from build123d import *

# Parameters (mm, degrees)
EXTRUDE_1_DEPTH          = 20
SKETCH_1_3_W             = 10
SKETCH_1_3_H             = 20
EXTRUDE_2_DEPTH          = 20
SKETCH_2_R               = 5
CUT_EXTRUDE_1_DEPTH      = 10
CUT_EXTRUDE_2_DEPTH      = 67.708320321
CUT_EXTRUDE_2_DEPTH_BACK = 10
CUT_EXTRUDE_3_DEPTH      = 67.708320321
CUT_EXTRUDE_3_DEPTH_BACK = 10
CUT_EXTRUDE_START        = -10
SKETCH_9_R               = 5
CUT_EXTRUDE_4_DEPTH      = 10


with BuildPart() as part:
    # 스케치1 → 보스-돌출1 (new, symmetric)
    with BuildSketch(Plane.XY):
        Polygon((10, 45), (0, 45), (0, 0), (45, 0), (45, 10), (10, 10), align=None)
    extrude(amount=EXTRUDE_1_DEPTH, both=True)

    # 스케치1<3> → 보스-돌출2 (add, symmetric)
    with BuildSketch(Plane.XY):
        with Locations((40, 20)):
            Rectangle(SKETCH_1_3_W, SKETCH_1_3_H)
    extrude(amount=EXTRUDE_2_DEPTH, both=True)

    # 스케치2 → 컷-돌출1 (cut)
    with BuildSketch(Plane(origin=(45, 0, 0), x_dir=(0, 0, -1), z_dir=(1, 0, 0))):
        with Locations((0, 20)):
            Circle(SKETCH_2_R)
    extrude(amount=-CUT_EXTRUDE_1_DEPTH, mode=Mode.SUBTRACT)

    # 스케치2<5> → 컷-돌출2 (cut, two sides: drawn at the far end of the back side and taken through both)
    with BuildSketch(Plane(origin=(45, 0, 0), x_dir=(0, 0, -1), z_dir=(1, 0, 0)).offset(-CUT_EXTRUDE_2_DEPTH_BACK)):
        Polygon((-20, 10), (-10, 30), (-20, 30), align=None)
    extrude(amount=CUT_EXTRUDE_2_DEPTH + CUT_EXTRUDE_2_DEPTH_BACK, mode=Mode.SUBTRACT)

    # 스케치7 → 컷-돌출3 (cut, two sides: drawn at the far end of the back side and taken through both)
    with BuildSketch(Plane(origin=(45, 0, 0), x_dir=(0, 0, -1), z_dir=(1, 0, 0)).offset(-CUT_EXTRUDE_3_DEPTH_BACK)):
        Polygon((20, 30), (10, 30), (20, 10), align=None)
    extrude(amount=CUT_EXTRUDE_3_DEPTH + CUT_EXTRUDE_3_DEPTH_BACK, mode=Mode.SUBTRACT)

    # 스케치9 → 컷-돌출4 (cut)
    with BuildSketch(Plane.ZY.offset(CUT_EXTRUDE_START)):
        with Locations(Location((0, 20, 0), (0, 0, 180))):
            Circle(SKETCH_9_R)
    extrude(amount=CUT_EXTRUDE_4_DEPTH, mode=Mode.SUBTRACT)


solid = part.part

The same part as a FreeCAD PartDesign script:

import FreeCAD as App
import Part
import Sketcher

V = App.Vector

doc = App.newDocument("Part")
body = doc.addObject("PartDesign::Body", "Body")

sketch1 = body.newObject("Sketcher::SketchObject", "Sketch")
sketch1.AttachmentSupport = (doc.getObject("XY_Plane"), [""])
sketch1.MapMode = "FlatFace"
sketch1.addGeometry([
    Part.LineSegment(V(10, 45, 0), V(0, 45, 0)),
    Part.LineSegment(V(0, 45, 0), V(0, 0, 0)),
    Part.LineSegment(V(0, 0, 0), V(45, 0, 0)),
    Part.LineSegment(V(45, 0, 0), V(45, 10, 0)),
    Part.LineSegment(V(45, 10, 0), V(10, 10, 0)),
    Part.LineSegment(V(10, 10, 0), V(10, 45, 0)),
], False)
sketch1.addConstraint([
    Sketcher.Constraint("Coincident", 0, 2, 1, 1),
    Sketcher.Constraint("Coincident", 1, 2, 2, 1),
    Sketcher.Constraint("Coincident", 2, 2, 3, 1),
    Sketcher.Constraint("Coincident", 3, 2, 4, 1),
    Sketcher.Constraint("Coincident", 4, 2, 5, 1),
    Sketcher.Constraint("Coincident", 5, 2, 0, 1),
    Sketcher.Constraint("Horizontal", 0),
    Sketcher.Constraint("Vertical", 1),
    Sketcher.Constraint("Horizontal", 2),
    Sketcher.Constraint("Vertical", 3),
    Sketcher.Constraint("Horizontal", 4),
    Sketcher.Constraint("Vertical", 5),
    Sketcher.Constraint("Coincident", 1, 2, -1, 1),
    Sketcher.Constraint("Equal", 2, 1),
    Sketcher.Constraint("Equal", 0, 3),
    Sketcher.Constraint("DistanceX", 0, 2, 0, 1, 10.0),
    Sketcher.Constraint("DistanceX", 2, 1, 2, 2, 45.0),
])
pad1 = body.newObject("PartDesign::Pad", "Pad")
pad1.Profile = sketch1
pad1.Length = 40
pad1.Midplane = True

sketch2 = body.newObject("Sketcher::SketchObject", "Sketch001")
sketch2.AttachmentSupport = (doc.getObject("XY_Plane"), [""])
sketch2.MapMode = "FlatFace"
sketch2.addGeometry([
    Part.LineSegment(V(35, 30, 0), V(35, 10, 0)),
    Part.LineSegment(V(35, 10, 0), V(45, 10, 0)),
    Part.LineSegment(V(45, 10, 0), V(45, 30, 0)),
    Part.LineSegment(V(45, 30, 0), V(35, 30, 0)),
], False)
sketch2.addConstraint([
    Sketcher.Constraint("Coincident", 0, 2, 1, 1),
    Sketcher.Constraint("Coincident", 1, 2, 2, 1),
    Sketcher.Constraint("Coincident", 2, 2, 3, 1),
    Sketcher.Constraint("Coincident", 3, 2, 0, 1),
    Sketcher.Constraint("Vertical", 0),
    Sketcher.Constraint("Horizontal", 1),
    Sketcher.Constraint("Vertical", 2),
    Sketcher.Constraint("Horizontal", 3),
    Sketcher.Constraint("DistanceX", 1, 1, 1, 2, 10.0),
    Sketcher.Constraint("DistanceY", 0, 2, 0, 1, 20.0),
    Sketcher.Constraint("DistanceX", -1, 1, 0, 2, 35.0),
    Sketcher.Constraint("DistanceY", -1, 1, 0, 2, 10.0),
])
pad2 = body.newObject("PartDesign::Pad", "Pad001")
pad2.Profile = sketch2
pad2.Length = 40
pad2.Midplane = True

sketch3 = body.newObject("Sketcher::SketchObject", "Sketch002")
sketch3.AttachmentSupport = (doc.getObject("YZ_Plane"), [""])
sketch3.MapMode = "FlatFace"
sketch3.AttachmentOffset = App.Placement(V(0, 0, 45), App.Rotation())
sketch3.addGeometry(Part.Circle(V(20, 0, 0), V(0, 0, 1), 5), False)
sketch3.addConstraint([
    Sketcher.Constraint("PointOnObject", 0, 3, -1),
    Sketcher.Constraint("Diameter", 0, 10.0),
    Sketcher.Constraint("DistanceX", -1, 1, 0, 3, 20.0),
])
pocket1 = body.newObject("PartDesign::Pocket", "Pocket")
pocket1.Profile = sketch3
pocket1.Length = 10

sketch4 = body.newObject("Sketcher::SketchObject", "Sketch003")
sketch4.AttachmentSupport = (doc.getObject("YZ_Plane"), [""])
sketch4.MapMode = "FlatFace"
sketch4.AttachmentOffset = App.Placement(V(0, 0, 45), App.Rotation())
sketch4.addGeometry([
    Part.LineSegment(V(10, 20, 0), V(30, 10, 0)),
    Part.LineSegment(V(30, 10, 0), V(30, 20, 0)),
    Part.LineSegment(V(30, 20, 0), V(10, 20, 0)),
], False)
sketch4.addConstraint([
    Sketcher.Constraint("Coincident", 0, 2, 1, 1),
    Sketcher.Constraint("Coincident", 1, 2, 2, 1),
    Sketcher.Constraint("Coincident", 2, 2, 0, 1),
    Sketcher.Constraint("Vertical", 1),
    Sketcher.Constraint("Horizontal", 2),
    Sketcher.Constraint("DistanceX", 2, 2, 2, 1, 20.0),
    Sketcher.Constraint("DistanceY", 1, 1, 1, 2, 10.0),
    Sketcher.Constraint("DistanceX", -1, 1, 0, 2, 30.0),
    Sketcher.Constraint("DistanceY", -1, 1, 0, 2, 10.0),
])
pocket2 = body.newObject("PartDesign::Pocket", "Pocket001")
pocket2.Profile = sketch4
pocket2.Type = "TwoLengths"
pocket2.Length = 67.70832
pocket2.Length2 = 10
pocket2.Reversed = True

sketch5 = body.newObject("Sketcher::SketchObject", "Sketch004")
sketch5.AttachmentSupport = (doc.getObject("YZ_Plane"), [""])
sketch5.MapMode = "FlatFace"
sketch5.AttachmentOffset = App.Placement(V(0, 0, 45), App.Rotation())
sketch5.addGeometry([
    Part.LineSegment(V(30, -20, 0), V(30, -10, 0)),
    Part.LineSegment(V(30, -10, 0), V(10, -20, 0)),
    Part.LineSegment(V(10, -20, 0), V(30, -20, 0)),
], False)
sketch5.addConstraint([
    Sketcher.Constraint("Coincident", 0, 2, 1, 1),
    Sketcher.Constraint("Coincident", 1, 2, 2, 1),
    Sketcher.Constraint("Coincident", 2, 2, 0, 1),
    Sketcher.Constraint("Vertical", 0),
    Sketcher.Constraint("Horizontal", 2),
    Sketcher.Constraint("DistanceX", 2, 1, 2, 2, 20.0),
    Sketcher.Constraint("DistanceY", 0, 1, 0, 2, 10.0),
    Sketcher.Constraint("DistanceX", -1, 1, 0, 2, 30.0),
    Sketcher.Constraint("DistanceY", 0, 2, -1, 1, 10.0),
])
pocket3 = body.newObject("PartDesign::Pocket", "Pocket002")
pocket3.Profile = sketch5
pocket3.Type = "TwoLengths"
pocket3.Length = 67.70832
pocket3.Length2 = 10
pocket3.Reversed = True

sketch6 = body.newObject("Sketcher::SketchObject", "Sketch005")
sketch6.AttachmentSupport = (doc.getObject("YZ_Plane"), [""])
sketch6.MapMode = "FlatFace"
sketch6.AttachmentOffset = App.Placement(V(0, 0, 10), App.Rotation())
sketch6.addGeometry(Part.Circle(V(20, 0, 0), V(0, 0, 1), 5), False)
sketch6.addConstraint([
    Sketcher.Constraint("PointOnObject", 0, 3, -1),
    Sketcher.Constraint("Diameter", 0, 10.0),
    Sketcher.Constraint("DistanceX", -1, 1, 0, 3, 20.0),
])
pocket4 = body.newObject("PartDesign::Pocket", "Pocket003")
pocket4.Profile = sketch6
pocket4.Length = 10

doc.recompute()
